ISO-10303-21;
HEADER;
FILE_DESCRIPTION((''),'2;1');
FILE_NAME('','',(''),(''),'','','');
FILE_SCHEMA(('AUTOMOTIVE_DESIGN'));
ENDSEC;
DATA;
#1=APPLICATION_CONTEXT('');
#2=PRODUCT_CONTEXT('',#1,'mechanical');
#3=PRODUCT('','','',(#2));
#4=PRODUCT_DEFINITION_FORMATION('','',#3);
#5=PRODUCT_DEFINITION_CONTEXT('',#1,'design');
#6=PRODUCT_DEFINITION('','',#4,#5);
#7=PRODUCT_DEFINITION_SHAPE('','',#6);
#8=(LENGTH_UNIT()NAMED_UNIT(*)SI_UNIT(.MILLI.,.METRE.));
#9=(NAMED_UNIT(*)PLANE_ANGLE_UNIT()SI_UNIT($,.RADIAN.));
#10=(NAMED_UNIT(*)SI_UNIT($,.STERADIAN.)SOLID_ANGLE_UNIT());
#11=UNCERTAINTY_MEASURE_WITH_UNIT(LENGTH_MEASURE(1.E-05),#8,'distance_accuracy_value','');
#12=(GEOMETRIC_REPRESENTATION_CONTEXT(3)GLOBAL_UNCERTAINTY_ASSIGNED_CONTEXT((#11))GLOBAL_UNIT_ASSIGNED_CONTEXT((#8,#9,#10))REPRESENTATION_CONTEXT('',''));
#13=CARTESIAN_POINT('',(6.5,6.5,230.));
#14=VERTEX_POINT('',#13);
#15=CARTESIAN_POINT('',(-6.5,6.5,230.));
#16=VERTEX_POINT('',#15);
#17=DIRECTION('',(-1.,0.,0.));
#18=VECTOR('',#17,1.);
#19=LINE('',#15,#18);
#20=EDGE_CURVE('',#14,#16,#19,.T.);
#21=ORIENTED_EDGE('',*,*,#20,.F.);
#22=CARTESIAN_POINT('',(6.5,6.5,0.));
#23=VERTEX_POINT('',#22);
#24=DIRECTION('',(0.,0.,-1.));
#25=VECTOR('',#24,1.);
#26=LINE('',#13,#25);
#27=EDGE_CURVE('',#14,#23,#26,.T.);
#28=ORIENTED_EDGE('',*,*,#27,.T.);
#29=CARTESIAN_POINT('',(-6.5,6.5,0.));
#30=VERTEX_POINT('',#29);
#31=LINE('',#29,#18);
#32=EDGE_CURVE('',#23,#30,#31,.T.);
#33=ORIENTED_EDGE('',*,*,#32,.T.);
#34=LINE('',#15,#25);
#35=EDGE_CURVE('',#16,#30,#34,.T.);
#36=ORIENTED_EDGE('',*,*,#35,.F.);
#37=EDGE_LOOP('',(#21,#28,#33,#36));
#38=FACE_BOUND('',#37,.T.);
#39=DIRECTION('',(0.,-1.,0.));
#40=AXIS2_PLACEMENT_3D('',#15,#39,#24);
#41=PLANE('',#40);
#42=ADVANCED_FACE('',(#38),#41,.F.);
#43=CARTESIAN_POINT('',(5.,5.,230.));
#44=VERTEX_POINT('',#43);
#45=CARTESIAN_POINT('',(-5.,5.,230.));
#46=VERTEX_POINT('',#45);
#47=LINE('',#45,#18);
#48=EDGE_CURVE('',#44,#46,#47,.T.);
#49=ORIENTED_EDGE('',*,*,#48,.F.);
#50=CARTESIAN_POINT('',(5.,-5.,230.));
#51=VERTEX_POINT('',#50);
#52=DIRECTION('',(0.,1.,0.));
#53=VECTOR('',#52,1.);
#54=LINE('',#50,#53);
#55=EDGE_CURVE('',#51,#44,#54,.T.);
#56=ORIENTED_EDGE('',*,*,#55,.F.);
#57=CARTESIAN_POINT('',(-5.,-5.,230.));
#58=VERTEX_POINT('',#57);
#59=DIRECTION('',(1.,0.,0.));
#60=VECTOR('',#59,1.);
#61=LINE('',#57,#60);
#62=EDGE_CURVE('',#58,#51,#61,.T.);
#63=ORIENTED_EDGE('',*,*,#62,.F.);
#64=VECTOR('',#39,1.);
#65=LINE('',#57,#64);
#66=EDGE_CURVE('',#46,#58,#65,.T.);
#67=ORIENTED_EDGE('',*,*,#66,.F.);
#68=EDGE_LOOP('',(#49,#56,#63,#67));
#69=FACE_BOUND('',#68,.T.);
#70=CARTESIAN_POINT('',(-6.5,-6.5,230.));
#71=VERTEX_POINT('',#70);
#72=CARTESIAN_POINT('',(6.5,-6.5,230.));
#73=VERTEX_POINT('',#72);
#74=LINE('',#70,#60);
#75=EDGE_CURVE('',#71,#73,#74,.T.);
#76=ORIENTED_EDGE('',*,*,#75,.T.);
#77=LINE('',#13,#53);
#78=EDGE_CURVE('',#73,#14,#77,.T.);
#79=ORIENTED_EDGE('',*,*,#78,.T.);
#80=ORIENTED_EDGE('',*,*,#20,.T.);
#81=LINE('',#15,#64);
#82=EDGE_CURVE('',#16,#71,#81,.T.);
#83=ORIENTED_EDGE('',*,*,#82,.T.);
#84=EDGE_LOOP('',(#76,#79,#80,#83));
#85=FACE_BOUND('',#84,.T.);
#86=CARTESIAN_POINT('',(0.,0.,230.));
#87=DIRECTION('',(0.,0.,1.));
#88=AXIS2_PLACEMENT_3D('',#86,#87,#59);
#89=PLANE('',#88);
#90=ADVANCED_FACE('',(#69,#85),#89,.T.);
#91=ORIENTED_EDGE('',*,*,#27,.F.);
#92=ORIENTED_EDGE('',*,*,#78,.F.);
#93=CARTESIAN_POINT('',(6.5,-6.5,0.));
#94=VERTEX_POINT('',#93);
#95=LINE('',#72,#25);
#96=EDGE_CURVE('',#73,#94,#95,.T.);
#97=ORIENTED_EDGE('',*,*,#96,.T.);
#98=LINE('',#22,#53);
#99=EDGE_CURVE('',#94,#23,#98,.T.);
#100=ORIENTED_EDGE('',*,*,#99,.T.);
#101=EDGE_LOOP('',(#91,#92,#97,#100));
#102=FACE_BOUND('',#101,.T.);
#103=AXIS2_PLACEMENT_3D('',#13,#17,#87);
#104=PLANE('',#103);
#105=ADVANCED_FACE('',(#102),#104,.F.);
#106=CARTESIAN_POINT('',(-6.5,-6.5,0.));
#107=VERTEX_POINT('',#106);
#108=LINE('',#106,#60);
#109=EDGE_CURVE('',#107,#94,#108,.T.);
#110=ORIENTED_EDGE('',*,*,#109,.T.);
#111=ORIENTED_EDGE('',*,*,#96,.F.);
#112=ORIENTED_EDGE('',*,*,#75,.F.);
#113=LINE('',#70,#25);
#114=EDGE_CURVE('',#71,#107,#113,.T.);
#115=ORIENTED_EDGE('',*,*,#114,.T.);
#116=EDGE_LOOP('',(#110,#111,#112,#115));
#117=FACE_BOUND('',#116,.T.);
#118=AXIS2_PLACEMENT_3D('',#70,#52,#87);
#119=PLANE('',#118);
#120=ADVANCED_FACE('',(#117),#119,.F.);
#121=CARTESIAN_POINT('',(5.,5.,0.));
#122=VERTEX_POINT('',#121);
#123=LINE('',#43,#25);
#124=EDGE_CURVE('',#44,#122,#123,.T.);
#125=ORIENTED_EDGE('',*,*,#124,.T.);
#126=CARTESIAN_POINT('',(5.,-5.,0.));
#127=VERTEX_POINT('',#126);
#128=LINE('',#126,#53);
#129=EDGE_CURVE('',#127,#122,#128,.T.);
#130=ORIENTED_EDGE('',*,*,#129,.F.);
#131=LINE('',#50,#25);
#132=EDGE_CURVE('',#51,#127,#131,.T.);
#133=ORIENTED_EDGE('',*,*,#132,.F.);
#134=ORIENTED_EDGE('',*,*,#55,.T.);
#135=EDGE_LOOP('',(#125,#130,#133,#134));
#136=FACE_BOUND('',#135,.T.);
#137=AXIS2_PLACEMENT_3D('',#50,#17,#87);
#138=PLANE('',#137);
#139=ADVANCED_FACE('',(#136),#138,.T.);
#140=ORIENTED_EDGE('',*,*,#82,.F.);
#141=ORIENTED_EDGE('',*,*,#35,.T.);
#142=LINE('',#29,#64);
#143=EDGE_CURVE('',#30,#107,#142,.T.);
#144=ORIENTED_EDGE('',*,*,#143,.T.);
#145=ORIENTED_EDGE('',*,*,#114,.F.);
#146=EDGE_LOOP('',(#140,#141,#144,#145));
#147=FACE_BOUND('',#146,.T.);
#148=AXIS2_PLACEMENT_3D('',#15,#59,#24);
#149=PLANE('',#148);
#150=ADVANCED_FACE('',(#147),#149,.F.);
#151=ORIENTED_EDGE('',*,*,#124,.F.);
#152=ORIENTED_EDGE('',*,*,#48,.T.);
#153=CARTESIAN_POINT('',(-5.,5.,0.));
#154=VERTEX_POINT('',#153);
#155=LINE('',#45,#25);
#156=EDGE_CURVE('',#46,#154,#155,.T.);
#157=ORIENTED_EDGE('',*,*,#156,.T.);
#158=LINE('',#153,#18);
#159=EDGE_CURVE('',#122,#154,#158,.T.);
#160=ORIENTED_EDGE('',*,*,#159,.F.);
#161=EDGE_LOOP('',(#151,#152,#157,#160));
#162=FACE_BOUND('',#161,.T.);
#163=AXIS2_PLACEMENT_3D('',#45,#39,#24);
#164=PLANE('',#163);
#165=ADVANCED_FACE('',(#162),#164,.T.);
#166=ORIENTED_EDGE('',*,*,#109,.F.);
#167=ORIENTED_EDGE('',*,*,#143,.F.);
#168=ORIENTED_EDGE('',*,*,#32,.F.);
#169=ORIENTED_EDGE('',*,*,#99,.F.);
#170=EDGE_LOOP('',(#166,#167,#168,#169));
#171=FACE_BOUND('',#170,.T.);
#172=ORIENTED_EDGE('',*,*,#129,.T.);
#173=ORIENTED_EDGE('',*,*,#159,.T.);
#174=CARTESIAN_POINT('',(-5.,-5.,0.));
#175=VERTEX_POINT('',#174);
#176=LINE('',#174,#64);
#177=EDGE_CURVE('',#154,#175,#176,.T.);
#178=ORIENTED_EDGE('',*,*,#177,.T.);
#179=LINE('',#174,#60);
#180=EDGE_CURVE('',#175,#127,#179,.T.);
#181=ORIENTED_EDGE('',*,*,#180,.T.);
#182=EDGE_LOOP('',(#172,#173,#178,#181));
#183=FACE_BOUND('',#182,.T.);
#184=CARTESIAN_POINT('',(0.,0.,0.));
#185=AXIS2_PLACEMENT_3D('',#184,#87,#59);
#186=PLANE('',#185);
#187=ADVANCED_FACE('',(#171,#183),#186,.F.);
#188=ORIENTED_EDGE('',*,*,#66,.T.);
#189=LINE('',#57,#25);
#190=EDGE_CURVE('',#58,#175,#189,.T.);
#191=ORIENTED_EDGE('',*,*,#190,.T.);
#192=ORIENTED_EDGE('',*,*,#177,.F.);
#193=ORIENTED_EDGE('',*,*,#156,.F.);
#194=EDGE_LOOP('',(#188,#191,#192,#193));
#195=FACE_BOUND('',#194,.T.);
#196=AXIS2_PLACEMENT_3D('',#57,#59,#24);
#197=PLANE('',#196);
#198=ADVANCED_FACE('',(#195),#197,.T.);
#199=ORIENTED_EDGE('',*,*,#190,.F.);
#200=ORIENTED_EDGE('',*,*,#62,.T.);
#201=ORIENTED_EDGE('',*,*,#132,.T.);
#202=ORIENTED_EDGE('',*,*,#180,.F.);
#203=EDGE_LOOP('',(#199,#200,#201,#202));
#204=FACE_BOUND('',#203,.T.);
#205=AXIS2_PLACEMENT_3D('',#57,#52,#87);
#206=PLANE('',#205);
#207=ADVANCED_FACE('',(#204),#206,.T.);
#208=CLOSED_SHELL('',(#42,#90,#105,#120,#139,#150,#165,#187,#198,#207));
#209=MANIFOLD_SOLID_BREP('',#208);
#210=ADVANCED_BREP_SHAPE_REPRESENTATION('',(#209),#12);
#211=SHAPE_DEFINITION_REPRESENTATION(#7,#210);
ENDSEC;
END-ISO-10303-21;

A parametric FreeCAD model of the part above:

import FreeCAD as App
import Part
import Sketcher

V = App.Vector
Q = App.Units.Quantity


def add_polygon(sketch, points):
    """Adds a closed chain of lines whose ends are joined by coincident constraints."""
    first, n = sketch.GeometryCount, len(points)
    for a, b in zip(points, points[1:] + points[:1]):
        sketch.addGeometry(Part.LineSegment(App.Vector(*a, 0), App.Vector(*b, 0)), False)
    for i in range(n):
        sketch.addConstraint(Sketcher.Constraint("Coincident", first + i, 2, first + (i + 1) % n, 1))

doc = App.newDocument("Part")
body = doc.addObject("PartDesign::Body", "Body")

sketch1 = body.newObject("Sketcher::SketchObject", "Sketch")
sketch1.AttachmentSupport = (doc.getObject("XY_Plane"), [""])
sketch1.MapMode = "FlatFace"
add_polygon(sketch1, [(-6, 6), (-6, -6), (6, -6), (6, 6)])
add_polygon(sketch1, [(5, -5), (-5, -5), (-5, 5), (5, 5)])
sketch1.addConstraint(Sketcher.Constraint("Vertical", 0))
sketch1.addConstraint(Sketcher.Constraint("Horizontal", 1))
sketch1.addConstraint(Sketcher.Constraint("Vertical", 2))
sketch1.addConstraint(Sketcher.Constraint("Horizontal", 3))
sketch1.addConstraint(Sketcher.Constraint("Horizontal", 4))
sketch1.addConstraint(Sketcher.Constraint("Vertical", 5))
sketch1.addConstraint(Sketcher.Constraint("Horizontal", 6))
sketch1.addConstraint(Sketcher.Constraint("Vertical", 7))
sketch1.addConstraint(Sketcher.Constraint("Symmetric", 0, 2, 2, 2, -1, 1))
sketch1.addConstraint(Sketcher.Constraint("Symmetric", 4, 2, 6, 2, -1, 1))
sketch1.addConstraint(Sketcher.Constraint("Equal", 3, 0))
sketch1.addConstraint(Sketcher.Constraint("Equal", 6, 5))
sketch1.addConstraint(Sketcher.Constraint("DistanceX", 1, 1, 1, 2, Q("13 mm")))
sketch1.addConstraint(Sketcher.Constraint("DistanceX", 4, 2, 4, 1, Q("10 mm")))
pad1 = body.newObject("PartDesign::Pad", "Pad")
pad1.Profile = sketch1
pad1.Length = 230

doc.recompute()
